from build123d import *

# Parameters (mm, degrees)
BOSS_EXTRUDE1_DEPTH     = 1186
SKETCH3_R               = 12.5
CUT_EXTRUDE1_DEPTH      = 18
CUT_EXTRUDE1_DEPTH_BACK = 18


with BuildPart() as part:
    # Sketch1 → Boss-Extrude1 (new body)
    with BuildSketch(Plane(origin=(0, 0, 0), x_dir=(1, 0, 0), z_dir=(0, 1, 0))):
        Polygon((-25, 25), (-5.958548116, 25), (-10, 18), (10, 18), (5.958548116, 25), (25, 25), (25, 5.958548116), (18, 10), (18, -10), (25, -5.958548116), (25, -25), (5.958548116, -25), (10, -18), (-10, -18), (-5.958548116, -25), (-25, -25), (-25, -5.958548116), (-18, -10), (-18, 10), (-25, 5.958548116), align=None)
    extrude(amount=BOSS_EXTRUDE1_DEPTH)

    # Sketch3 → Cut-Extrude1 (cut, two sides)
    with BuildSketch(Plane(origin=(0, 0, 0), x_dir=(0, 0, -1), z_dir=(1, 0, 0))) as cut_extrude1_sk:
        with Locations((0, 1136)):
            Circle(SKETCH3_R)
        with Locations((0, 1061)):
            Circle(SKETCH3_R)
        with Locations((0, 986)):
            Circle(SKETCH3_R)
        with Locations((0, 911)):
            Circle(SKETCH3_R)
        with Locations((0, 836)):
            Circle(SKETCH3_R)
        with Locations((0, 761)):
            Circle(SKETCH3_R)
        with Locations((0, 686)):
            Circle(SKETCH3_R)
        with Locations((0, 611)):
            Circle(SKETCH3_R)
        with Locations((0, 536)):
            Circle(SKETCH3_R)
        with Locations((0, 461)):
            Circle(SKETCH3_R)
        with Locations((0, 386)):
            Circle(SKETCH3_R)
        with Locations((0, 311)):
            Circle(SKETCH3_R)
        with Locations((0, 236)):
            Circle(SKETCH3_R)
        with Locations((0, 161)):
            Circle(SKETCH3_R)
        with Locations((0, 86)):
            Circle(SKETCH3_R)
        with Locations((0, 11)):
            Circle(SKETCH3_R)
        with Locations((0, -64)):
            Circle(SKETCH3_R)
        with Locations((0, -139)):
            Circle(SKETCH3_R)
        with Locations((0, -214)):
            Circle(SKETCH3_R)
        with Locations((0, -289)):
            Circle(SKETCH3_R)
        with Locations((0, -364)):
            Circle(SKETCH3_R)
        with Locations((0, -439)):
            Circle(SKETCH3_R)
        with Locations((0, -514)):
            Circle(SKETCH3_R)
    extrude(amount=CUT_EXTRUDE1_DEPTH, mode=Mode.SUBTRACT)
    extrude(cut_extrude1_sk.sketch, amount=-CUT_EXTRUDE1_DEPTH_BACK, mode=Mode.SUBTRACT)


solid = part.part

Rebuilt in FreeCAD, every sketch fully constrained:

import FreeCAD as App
import Part
import Sketcher
from FreeCAD import Vector
Q = App.Units.Quantity


def add_polygon(sketch, points):
    """Adds a closed chain of lines whose ends are joined by coincident constraints."""
    first, n = sketch.GeometryCount, len(points)
    for a, b in zip(points, points[1:] + points[:1]):
        sketch.addGeometry(Part.LineSegment(App.Vector(*a, 0), App.Vector(*b, 0)), False)
    for i in range(n):
        sketch.addConstraint(Sketcher.Constraint("Coincident", first + i, 2, first + (i + 1) % n, 1))

doc = App.newDocument("Part")
body = doc.addObject("PartDesign::Body", "Body")

# Sketch on XZ plane
sketch1 = body.newObject("Sketcher::SketchObject", "Sketch")
sketch1.AttachmentSupport = (doc.getObject("XZ_Plane"), [""])
sketch1.MapMode = "FlatFace"
add_polygon(sketch1, [(-6, -25), (-25, -25), (-25, -6), (-18, -10), (-18, 10), (-25, 6), (-25, 25), (-6, 25), (-10, 18), (10, 18), (6, 25), (25, 25), (25, 6), (18, 10), (18, -10), (25, -6), (25, -25), (6, -25), (10, -18), (-10, -18)])  # lines 0-19
sketch1.addConstraint(Sketcher.Constraint("Horizontal", 0))
sketch1.addConstraint(Sketcher.Constraint("Vertical", 1))
sketch1.addConstraint(Sketcher.Constraint("Vertical", 3))
sketch1.addConstraint(Sketcher.Constraint("Vertical", 5))
sketch1.addConstraint(Sketcher.Constraint("Horizontal", 6))
sketch1.addConstraint(Sketcher.Constraint("Horizontal", 8))
sketch1.addConstraint(Sketcher.Constraint("Horizontal", 10))
sketch1.addConstraint(Sketcher.Constraint("Vertical", 11))
sketch1.addConstraint(Sketcher.Constraint("Vertical", 13))
sketch1.addConstraint(Sketcher.Constraint("Vertical", 15))
sketch1.addConstraint(Sketcher.Constraint("Horizontal", 16))
sketch1.addConstraint(Sketcher.Constraint("Horizontal", 18))
sketch1.addConstraint(Sketcher.Constraint("Symmetric", 0, 2, 10, 2, -1, 1))
sketch1.addConstraint(Sketcher.Constraint("Symmetric", 2, 2, 12, 2, -1, 1))
sketch1.addConstraint(Sketcher.Constraint("Symmetric", 4, 2, 14, 2, -1, 1))
sketch1.addConstraint(Sketcher.Constraint("Symmetric", 6, 2, 16, 2, -1, 1))
sketch1.addConstraint(Sketcher.Constraint("Symmetric", 7, 2, 17, 2, -1, 1))
sketch1.addConstraint(Sketcher.Constraint("Symmetric", 6, 2, 9, 2, -2))
sketch1.addConstraint(Sketcher.Constraint("Symmetric", 4, 2, 11, 2, -2))
sketch1.addConstraint(Sketcher.Constraint("Perpendicular", 2, 7))
sketch1.addConstraint(Sketcher.Constraint("Perpendicular", 4, 9))
sketch1.addConstraint(Sketcher.Constraint("Perpendicular", 7, 12))
sketch1.addConstraint(Sketcher.Constraint("Perpendicular", 9, 14))
sketch1.addConstraint(Sketcher.Constraint("Perpendicular", 14, 19))
sketch1.addConstraint(Sketcher.Constraint("Horizontal", 3, 2, 12, 2))
sketch1.addConstraint(Sketcher.Constraint("Vertical", 7, 2, 18, 2))
sketch1.addConstraint(Sketcher.Constraint("Equal", 16, 1))
sketch1.addConstraint(Sketcher.Constraint("Equal", 18, 3))
sketch1.addConstraint(Sketcher.Constraint("Equal", 4, 7))
sketch1.addConstraint(Sketcher.Constraint("DistanceX", 8, 1, 8, 2, Q("20 mm")))
sketch1.addConstraint(Sketcher.Constraint("Angle", 2, Q("-30 deg")))
sketch1.addConstraint(Sketcher.Constraint("DistanceX", 0, 2, -1, 1, Q("25 mm")))
sketch1.addConstraint(Sketcher.Constraint("DistanceX", 2, 2, -1, 1, Q("18 mm")))
pad1 = body.newObject("PartDesign::Pad", "Pad")
pad1.Profile = sketch1
pad1.Length = 1186
pad1.Reversed = True

# Sketch on YZ plane
sketch2 = body.newObject("Sketcher::SketchObject", "Sketch001")
sketch2.AttachmentSupport = (doc.getObject("YZ_Plane"), [""])
sketch2.MapMode = "FlatFace"
sketch2.addGeometry(Part.Circle(Vector(1136, 0, 0), Vector(0, 0, 1), 12), False)
sketch2.addGeometry(Part.Circle(Vector(1061, 0, 0), Vector(0, 0, 1), 12), False)
sketch2.addGeometry(Part.Circle(Vector(986, 0, 0), Vector(0, 0, 1), 12), False)
sketch2.addGeometry(Part.Circle(Vector(911, 0, 0), Vector(0, 0, 1), 12), False)
sketch2.addGeometry(Part.Circle(Vector(836, 0, 0), Vector(0, 0, 1), 12), False)
sketch2.addGeometry(Part.Circle(Vector(761, 0, 0), Vector(0, 0, 1), 12), False)
sketch2.addGeometry(Part.Circle(Vector(686, 0, 0), Vector(0, 0, 1), 12), False)
sketch2.addGeometry(Part.Circle(Vector(611, 0, 0), Vector(0, 0, 1), 12), False)
sketch2.addGeometry(Part.Circle(Vector(536, 0, 0), Vector(0, 0, 1), 12), False)
sketch2.addGeometry(Part.Circle(Vector(461, 0, 0), Vector(0, 0, 1), 12), False)
sketch2.addGeometry(Part.Circle(Vector(386, 0, 0), Vector(0, 0, 1), 12), False)
sketch2.addGeometry(Part.Circle(Vector(311, 0, 0), Vector(0, 0, 1), 12), False)
sketch2.addGeometry(Part.Circle(Vector(236, 0, 0), Vector(0, 0, 1), 12), False)
sketch2.addGeometry(Part.Circle(Vector(161, 0, 0), Vector(0, 0, 1), 12), False)
sketch2.addGeometry(Part.Circle(Vector(86, 0, 0), Vector(0, 0, 1), 12), False)
sketch2.addGeometry(Part.Circle(Vector(11, 0, 0), Vector(0, 0, 1), 12), False)
sketch2.addGeometry(Part.Circle(Vector(-64, 0, 0), Vector(0, 0, 1), 12), False)
sketch2.addGeometry(Part.Circle(Vector(-139, 0, 0), Vector(0, 0, 1), 12), False)
sketch2.addGeometry(Part.Circle(Vector(-214, 0, 0), Vector(0, 0, 1), 12), False)
sketch2.addGeometry(Part.Circle(Vector(-289, 0, 0), Vector(0, 0, 1), 12), False)
sketch2.addGeometry(Part.Circle(Vector(-364, 0, 0), Vector(0, 0, 1), 12), False)
sketch2.addGeometry(Part.Circle(Vector(-439, 0, 0), Vector(0, 0, 1), 12), False)
sketch2.addGeometry(Part.Circle(Vector(-514, 0, 0), Vector(0, 0, 1), 12), False)
sketch2.addConstraint(Sketcher.Constraint("Equal", 0, 1))
sketch2.addConstraint(Sketcher.Constraint("Equal", 1, 2))
sketch2.addConstraint(Sketcher.Constraint("Equal", 2, 3))
sketch2.addConstraint(Sketcher.Constraint("Equal", 3, 4))
sketch2.addConstraint(Sketcher.Constraint("Equal", 4, 5))
sketch2.addConstraint(Sketcher.Constraint("Equal", 5, 6))
sketch2.addConstraint(Sketcher.Constraint("Equal", 6, 7))
sketch2.addConstraint(Sketcher.Constraint("Equal", 7, 8))
sketch2.addConstraint(Sketcher.Constraint("Equal", 8, 9))
sketch2.addConstraint(Sketcher.Constraint("Equal", 9, 10))
sketch2.addConstraint(Sketcher.Constraint("Equal", 10, 11))
sketch2.addConstraint(Sketcher.Constraint("Equal", 11, 12))
sketch2.addConstraint(Sketcher.Constraint("Equal", 12, 13))
sketch2.addConstraint(Sketcher.Constraint("Equal", 13, 14))
sketch2.addConstraint(Sketcher.Constraint("Equal", 14, 15))
sketch2.addConstraint(Sketcher.Constraint("Equal", 15, 16))
sketch2.addConstraint(Sketcher.Constraint("Equal", 16, 17))
sketch2.addConstraint(Sketcher.Constraint("Equal", 17, 18))
sketch2.addConstraint(Sketcher.Constraint("Equal", 18, 19))
sketch2.addConstraint(Sketcher.Constraint("Equal", 19, 20))
sketch2.addConstraint(Sketcher.Constraint("Equal", 20, 21))
sketch2.addConstraint(Sketcher.Constraint("Equal", 21, 22))
sketch2.addConstraint(Sketcher.Constraint("PointOnObject", 0, 3, -1))
sketch2.addConstraint(Sketcher.Constraint("PointOnObject", 1, 3, -1))
sketch2.addConstraint(Sketcher.Constraint("PointOnObject", 2, 3, -1))
sketch2.addConstraint(Sketcher.Constraint("PointOnObject", 3, 3, -1))
sketch2.addConstraint(Sketcher.Constraint("PointOnObject", 4, 3, -1))
sketch2.addConstraint(Sketcher.Constraint("PointOnObject", 5, 3, -1))
sketch2.addConstraint(Sketcher.Constraint("PointOnObject", 6, 3, -1))
sketch2.addConstraint(Sketcher.Constraint("PointOnObject", 7, 3, -1))
sketch2.addConstraint(Sketcher.Constraint("PointOnObject", 8, 3, -1))
sketch2.addConstraint(Sketcher.Constraint("PointOnObject", 9, 3, -1))
sketch2.addConstraint(Sketcher.Constraint("PointOnObject", 10, 3, -1))
sketch2.addConstraint(Sketcher.Constraint("PointOnObject", 11, 3, -1))
sketch2.addConstraint(Sketcher.Constraint("PointOnObject", 12, 3, -1))
sketch2.addConstraint(Sketcher.Constraint("PointOnObject", 13, 3, -1))
sketch2.addConstraint(Sketcher.Constraint("PointOnObject", 14, 3, -1))
sketch2.addConstraint(Sketcher.Constraint("PointOnObject", 15, 3, -1))
sketch2.addConstraint(Sketcher.Constraint("PointOnObject", 16, 3, -1))
sketch2.addConstraint(Sketcher.Constraint("PointOnObject", 17, 3, -1))
sketch2.addConstraint(Sketcher.Constraint("PointOnObject", 18, 3, -1))
sketch2.addConstraint(Sketcher.Constraint("PointOnObject", 19, 3, -1))
sketch2.addConstraint(Sketcher.Constraint("PointOnObject", 20, 3, -1))
sketch2.addConstraint(Sketcher.Constraint("PointOnObject", 21, 3, -1))
sketch2.addConstraint(Sketcher.Constraint("PointOnObject", 22, 3, -1))
sketch2.addConstraint(Sketcher.Constraint("Diameter", 0, Q("25 mm")))
sketch2.addConstraint(Sketcher.Constraint("DistanceX", -1, 1, 0, 3, Q("1136 mm")))
sketch2.addConstraint(Sketcher.Constraint("DistanceX", -1, 1, 1, 3, Q("1061 mm")))
sketch2.addConstraint(Sketcher.Constraint("DistanceX", -1, 1, 2, 3, Q("986 mm")))
sketch2.addConstraint(Sketcher.Constraint("DistanceX", -1, 1, 3, 3, Q("911 mm")))
sketch2.addConstraint(Sketcher.Constraint("DistanceX", -1, 1, 4, 3, Q("836 mm")))
sketch2.addConstraint(Sketcher.Constraint("DistanceX", -1, 1, 5, 3, Q("761 mm")))
sketch2.addConstraint(Sketcher.Constraint("DistanceX", -1, 1, 6, 3, Q("686 mm")))
sketch2.addConstraint(Sketcher.Constraint("DistanceX", -1, 1, 7, 3, Q("611 mm")))
sketch2.addConstraint(Sketcher.Constraint("DistanceX", -1, 1, 8, 3, Q("536 mm")))
sketch2.addConstraint(Sketcher.Constraint("DistanceX", -1, 1, 9, 3, Q("461 mm")))
sketch2.addConstraint(Sketcher.Constraint("DistanceX", -1, 1, 10, 3, Q("386 mm")))
sketch2.addConstraint(Sketcher.Constraint("DistanceX", -1, 1, 11, 3, Q("311 mm")))
sketch2.addConstraint(Sketcher.Constraint("DistanceX", -1, 1, 12, 3, Q("236 mm")))
sketch2.addConstraint(Sketcher.Constraint("DistanceX", -1, 1, 13, 3, Q("161 mm")))
sketch2.addConstraint(Sketcher.Constraint("DistanceX", -1, 1, 14, 3, Q("86 mm")))
sketch2.addConstraint(Sketcher.Constraint("DistanceX", -1, 1, 15, 3, Q("11 mm")))
sketch2.addConstraint(Sketcher.Constraint("DistanceX", 16, 3, -1, 1, Q("64 mm")))
sketch2.addConstraint(Sketcher.Constraint("DistanceX", 17, 3, -1, 1, Q("139 mm")))
sketch2.addConstraint(Sketcher.Constraint("DistanceX", 18, 3, -1, 1, Q("214 mm")))
sketch2.addConstraint(Sketcher.Constraint("DistanceX", 19, 3, -1, 1, Q("289 mm")))
sketch2.addConstraint(Sketcher.Constraint("DistanceX", 20, 3, -1, 1, Q("364 mm")))
sketch2.addConstraint(Sketcher.Constraint("DistanceX", 21, 3, -1, 1, Q("439 mm")))
sketch2.addConstraint(Sketcher.Constraint("DistanceX", 22, 3, -1, 1, Q("514 mm")))
pocket1 = body.newObject("PartDesign::Pocket", "Pocket")
pocket1.Profile = sketch2
pocket1.Type = "TwoLengths"
pocket1.Length = 18
pocket1.Length2 = 18
pocket1.Reversed = True

doc.recompute()
